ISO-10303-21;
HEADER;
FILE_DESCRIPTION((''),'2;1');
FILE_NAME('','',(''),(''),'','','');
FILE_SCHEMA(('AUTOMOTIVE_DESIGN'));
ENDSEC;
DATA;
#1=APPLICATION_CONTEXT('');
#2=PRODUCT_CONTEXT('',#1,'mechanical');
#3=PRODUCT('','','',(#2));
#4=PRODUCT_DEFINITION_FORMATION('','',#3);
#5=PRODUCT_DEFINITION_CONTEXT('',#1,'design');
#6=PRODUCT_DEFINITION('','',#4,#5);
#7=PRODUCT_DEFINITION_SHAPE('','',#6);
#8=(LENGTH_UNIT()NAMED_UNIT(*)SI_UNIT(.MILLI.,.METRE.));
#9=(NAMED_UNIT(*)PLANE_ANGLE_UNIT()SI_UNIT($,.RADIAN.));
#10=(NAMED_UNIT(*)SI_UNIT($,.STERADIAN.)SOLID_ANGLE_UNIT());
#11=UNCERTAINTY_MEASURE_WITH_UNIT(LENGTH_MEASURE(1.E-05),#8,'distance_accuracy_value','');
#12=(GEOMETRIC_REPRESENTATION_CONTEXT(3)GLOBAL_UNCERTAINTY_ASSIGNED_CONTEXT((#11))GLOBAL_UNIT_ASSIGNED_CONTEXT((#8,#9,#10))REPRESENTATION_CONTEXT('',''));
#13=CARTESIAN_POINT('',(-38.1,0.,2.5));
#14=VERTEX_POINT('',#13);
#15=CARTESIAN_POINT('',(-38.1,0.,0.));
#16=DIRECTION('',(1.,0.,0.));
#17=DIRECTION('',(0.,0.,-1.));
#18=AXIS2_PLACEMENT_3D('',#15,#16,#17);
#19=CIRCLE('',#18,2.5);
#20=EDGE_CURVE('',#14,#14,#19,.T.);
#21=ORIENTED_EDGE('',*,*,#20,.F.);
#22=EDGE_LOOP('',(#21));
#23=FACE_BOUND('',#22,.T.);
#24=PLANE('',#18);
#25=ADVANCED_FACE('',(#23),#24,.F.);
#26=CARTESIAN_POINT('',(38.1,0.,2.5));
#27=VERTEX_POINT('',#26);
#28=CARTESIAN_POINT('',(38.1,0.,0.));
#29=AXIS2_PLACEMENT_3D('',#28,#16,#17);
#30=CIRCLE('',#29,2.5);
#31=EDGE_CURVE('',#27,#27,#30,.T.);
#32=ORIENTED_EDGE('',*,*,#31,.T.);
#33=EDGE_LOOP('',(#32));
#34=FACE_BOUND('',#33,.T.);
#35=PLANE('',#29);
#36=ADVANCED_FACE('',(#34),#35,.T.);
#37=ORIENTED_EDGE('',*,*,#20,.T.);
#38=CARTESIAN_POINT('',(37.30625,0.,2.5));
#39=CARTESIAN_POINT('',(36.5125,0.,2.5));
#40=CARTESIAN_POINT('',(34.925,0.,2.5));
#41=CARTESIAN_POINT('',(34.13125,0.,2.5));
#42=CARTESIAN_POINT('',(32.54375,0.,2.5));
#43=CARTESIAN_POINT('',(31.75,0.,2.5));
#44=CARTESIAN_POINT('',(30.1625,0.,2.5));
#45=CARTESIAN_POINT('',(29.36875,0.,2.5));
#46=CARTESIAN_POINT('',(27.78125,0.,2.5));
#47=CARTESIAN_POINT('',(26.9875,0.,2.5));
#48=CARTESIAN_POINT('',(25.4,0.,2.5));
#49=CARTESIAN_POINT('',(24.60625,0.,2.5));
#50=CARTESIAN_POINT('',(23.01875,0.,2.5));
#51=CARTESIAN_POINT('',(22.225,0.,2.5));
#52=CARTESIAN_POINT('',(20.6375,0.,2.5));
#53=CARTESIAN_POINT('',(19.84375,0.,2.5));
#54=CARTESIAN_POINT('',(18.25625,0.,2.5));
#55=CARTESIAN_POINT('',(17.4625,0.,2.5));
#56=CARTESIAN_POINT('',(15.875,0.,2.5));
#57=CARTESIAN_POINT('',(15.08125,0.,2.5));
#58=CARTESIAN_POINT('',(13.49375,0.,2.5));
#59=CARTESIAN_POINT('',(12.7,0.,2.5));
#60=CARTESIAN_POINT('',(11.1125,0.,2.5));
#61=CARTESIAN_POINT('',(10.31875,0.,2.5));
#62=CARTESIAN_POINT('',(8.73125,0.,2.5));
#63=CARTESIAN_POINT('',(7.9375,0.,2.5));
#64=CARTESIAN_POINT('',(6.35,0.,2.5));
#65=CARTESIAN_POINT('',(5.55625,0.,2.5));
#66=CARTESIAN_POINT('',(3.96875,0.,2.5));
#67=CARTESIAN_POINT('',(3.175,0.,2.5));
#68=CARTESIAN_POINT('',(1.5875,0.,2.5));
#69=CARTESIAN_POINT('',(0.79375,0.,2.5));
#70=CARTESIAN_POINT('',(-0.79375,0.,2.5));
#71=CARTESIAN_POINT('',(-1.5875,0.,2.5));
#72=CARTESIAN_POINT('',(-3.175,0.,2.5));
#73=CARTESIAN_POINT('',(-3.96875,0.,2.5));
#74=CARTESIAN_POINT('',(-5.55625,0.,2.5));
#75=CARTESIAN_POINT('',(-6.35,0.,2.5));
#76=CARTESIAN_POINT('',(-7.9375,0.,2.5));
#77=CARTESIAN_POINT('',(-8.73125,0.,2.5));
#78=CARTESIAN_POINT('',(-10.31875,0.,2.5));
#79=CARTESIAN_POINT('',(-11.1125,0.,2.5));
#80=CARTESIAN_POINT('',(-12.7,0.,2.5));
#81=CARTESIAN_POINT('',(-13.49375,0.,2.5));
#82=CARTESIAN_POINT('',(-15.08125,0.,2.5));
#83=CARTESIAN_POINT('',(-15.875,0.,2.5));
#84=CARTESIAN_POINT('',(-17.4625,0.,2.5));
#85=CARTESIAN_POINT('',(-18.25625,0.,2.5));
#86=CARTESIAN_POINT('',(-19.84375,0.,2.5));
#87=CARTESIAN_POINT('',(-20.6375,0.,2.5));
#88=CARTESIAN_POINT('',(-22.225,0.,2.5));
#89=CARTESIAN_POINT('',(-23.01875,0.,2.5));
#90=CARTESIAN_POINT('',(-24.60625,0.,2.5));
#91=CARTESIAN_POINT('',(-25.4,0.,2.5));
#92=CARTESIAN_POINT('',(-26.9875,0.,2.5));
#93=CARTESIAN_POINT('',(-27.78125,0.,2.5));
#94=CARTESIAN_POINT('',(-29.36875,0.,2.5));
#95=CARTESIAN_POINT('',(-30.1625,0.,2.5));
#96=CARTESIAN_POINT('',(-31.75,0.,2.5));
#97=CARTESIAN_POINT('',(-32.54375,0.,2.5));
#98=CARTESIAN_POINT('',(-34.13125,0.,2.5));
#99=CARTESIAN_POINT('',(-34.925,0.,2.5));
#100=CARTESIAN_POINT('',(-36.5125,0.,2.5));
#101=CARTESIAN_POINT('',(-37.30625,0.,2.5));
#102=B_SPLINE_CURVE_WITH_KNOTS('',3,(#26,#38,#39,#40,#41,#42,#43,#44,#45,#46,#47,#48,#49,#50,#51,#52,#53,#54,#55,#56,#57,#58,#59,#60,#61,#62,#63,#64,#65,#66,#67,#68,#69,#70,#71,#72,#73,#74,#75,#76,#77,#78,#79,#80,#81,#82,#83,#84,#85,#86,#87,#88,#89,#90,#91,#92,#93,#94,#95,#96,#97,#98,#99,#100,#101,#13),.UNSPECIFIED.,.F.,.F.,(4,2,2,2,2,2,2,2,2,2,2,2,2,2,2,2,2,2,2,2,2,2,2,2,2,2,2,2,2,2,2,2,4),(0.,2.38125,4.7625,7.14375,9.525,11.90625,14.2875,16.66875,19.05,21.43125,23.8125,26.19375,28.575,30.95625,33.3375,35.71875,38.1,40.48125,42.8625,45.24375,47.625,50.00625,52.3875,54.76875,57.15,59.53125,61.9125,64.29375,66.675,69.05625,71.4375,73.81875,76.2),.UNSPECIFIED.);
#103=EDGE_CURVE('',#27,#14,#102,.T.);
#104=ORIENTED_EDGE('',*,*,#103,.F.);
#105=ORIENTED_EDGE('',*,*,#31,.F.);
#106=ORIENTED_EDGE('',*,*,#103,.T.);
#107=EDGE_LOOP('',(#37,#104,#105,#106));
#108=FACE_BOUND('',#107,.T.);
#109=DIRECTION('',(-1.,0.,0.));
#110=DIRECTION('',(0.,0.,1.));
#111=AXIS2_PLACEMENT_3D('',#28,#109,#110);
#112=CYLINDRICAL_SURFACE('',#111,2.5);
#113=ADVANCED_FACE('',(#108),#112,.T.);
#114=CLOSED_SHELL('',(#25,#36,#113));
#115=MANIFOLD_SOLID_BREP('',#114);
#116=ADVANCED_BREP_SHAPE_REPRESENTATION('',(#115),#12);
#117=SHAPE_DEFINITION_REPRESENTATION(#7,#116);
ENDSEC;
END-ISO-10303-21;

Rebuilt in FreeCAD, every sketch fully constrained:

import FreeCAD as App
import Part
import Sketcher

V = App.Vector
Q = App.Units.Quantity

doc = App.newDocument("Part")
body = doc.addObject("PartDesign::Body", "Body")

sketch1 = doc.addObject("Sketcher::SketchObject", "Sketch")
body.addObject(sketch1)
sketch1.AttachmentSupport = (doc.YZ_Plane, [""])
sketch1.MapMode = "FlatFace"
sketch1.addGeometry(Part.Circle(V(0, 0, 0), V(0, 0, 1), 2.5), False)
sketch1.addConstraint(Sketcher.Constraint("Coincident", 0, 3, -1, 1))
sketch1.addConstraint(Sketcher.Constraint("Diameter", 0, Q("5 mm")))
pad1 = doc.addObject("PartDesign::Pad", "Pad")
body.addObject(pad1)
pad1.Profile = sketch1
pad1.Length = 76.2
pad1.Midplane = True

doc.recompute()
